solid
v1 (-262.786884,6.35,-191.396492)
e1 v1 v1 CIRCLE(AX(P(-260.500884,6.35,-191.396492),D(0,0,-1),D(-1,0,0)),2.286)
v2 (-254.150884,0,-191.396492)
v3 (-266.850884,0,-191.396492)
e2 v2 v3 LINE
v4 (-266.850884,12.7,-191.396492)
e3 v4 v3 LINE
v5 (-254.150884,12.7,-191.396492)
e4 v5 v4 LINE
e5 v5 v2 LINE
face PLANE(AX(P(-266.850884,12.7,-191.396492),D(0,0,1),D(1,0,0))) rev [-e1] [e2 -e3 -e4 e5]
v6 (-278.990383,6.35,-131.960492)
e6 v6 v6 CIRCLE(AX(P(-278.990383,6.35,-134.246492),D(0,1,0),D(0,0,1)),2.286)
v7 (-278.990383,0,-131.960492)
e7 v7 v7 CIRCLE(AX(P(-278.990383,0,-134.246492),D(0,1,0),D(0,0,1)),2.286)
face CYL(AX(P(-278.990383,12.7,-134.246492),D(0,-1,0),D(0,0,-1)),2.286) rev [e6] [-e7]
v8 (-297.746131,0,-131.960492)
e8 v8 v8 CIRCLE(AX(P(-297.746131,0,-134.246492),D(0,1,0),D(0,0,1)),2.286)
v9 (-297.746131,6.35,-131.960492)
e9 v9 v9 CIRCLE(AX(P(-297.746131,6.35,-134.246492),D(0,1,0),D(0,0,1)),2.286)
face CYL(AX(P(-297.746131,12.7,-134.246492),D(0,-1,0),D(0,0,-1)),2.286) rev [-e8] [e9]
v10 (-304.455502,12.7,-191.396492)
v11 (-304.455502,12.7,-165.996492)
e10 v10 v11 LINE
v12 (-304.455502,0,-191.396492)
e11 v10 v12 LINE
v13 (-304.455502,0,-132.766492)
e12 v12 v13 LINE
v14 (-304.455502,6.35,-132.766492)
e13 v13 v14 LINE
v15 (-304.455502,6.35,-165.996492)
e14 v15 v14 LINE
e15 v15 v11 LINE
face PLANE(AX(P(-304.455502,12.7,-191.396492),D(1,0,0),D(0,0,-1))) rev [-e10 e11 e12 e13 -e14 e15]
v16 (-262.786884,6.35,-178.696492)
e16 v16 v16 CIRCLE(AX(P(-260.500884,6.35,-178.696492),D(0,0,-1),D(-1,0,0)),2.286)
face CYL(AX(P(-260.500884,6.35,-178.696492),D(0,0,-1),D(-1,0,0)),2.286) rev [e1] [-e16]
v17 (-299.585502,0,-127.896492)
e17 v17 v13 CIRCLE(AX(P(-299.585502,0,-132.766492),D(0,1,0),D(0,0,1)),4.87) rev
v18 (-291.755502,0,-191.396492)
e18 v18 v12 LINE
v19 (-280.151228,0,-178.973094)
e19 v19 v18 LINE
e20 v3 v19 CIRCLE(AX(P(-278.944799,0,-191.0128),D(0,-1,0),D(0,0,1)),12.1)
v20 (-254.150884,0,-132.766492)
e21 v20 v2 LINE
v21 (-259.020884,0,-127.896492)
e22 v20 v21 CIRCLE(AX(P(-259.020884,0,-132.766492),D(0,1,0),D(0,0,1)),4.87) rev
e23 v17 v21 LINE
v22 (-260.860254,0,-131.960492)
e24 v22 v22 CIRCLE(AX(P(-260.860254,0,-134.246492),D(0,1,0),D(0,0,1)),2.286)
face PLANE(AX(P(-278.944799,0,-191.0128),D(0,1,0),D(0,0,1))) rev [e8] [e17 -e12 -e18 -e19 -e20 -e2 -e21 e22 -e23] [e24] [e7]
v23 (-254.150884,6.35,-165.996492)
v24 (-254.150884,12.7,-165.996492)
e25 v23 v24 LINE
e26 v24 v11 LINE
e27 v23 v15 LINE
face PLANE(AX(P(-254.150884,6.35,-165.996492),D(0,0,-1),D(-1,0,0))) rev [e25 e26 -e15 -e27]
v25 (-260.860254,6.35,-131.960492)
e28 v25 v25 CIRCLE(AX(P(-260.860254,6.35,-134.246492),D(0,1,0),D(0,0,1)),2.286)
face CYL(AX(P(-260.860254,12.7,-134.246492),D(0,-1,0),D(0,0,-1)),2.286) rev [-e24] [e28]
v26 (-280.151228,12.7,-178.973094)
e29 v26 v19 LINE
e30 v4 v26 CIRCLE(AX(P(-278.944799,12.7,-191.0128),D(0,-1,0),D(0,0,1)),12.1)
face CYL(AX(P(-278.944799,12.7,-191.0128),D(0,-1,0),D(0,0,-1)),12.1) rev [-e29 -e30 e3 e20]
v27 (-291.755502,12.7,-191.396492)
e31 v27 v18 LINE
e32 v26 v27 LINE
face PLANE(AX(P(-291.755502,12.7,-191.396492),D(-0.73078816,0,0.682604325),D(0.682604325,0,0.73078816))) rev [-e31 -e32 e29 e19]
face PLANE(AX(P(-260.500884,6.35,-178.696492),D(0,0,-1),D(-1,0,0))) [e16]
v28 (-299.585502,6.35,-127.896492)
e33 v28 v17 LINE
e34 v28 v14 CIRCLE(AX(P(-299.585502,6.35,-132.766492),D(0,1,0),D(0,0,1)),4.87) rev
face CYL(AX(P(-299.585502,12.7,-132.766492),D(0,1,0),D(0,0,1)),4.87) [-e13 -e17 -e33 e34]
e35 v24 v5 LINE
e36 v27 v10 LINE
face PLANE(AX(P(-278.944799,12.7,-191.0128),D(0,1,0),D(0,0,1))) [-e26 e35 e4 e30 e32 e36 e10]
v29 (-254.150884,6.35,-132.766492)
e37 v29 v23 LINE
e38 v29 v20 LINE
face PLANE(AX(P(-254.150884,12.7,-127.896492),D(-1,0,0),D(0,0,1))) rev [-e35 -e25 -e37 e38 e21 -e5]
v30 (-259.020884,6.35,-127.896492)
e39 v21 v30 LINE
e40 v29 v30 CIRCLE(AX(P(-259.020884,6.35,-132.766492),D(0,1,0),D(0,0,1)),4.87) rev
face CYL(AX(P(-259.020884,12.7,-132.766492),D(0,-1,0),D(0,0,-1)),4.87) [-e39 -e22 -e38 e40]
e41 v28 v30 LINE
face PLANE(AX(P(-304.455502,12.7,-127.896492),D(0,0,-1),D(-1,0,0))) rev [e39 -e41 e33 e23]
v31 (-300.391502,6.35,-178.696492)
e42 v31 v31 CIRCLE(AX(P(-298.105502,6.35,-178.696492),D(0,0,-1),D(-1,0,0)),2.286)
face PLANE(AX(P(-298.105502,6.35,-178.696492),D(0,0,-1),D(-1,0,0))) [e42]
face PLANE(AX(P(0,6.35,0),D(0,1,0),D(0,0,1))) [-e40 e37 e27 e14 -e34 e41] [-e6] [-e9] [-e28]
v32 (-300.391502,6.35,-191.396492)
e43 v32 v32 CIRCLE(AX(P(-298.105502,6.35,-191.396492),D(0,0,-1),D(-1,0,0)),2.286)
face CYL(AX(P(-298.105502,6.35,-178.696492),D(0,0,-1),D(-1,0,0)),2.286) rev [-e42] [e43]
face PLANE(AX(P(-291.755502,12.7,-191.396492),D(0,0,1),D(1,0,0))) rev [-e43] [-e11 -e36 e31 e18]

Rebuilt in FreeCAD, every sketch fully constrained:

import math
import FreeCAD as App
import Part
import Sketcher
Q = App.Units.Quantity


def edges_at(feature, points):
    """Names of the edges that pass closest to the given points."""
    edges = feature.Shape.Edges
    near = lambda p: min(range(len(edges)), key=lambda i: edges[i].distToShape(Part.Vertex(*p))[0])
    return sorted({f"Edge{near(p) + 1}" for p in points})


def add_polygon(sketch, points):
    """Adds a closed chain of lines whose ends are joined by coincident constraints."""
    first, n = sketch.GeometryCount, len(points)
    for a, b in zip(points, points[1:] + points[:1]):
        sketch.addGeometry(Part.LineSegment(App.Vector(*a, 0), App.Vector(*b, 0)), False)
    for i in range(n):
        sketch.addConstraint(Sketcher.Constraint("Coincident", first + i, 2, first + (i + 1) % n, 1))

doc = App.newDocument("Part")
params = doc.addObject("Spreadsheet::Sheet", "Params")
for row, (alias, value) in enumerate([
    ("sketch1_diameter", "0.18 in"),
    ("sketch1_width", "0.5 in"),
    ("sketch1_height", "2.5 in"),
    ("pad1_length", "0.5 in"),
    ("sketch2_diameter", "0.18 in"),
    ("pocket1_length", "0.5 in"),
    ("fillet_radius", "4.87 mm"),
    ("fillet2_radius", "4.87 mm"),
    ("sketch3_height", "1.5 in"),
    ("pocket2_length", "0.25 in"),
], start=1):
    params.set(f"A{row}", alias)
    params.set(f"B{row}", "=" + value)
    params.setAlias(f"B{row}", alias)

body = doc.addObject("PartDesign::Body", "Body")

# Sketch on XZ plane
sketch1 = body.newObject("Sketcher::SketchObject", "Sketch")
sketch1.AttachmentSupport = (doc.getObject("XZ_Plane"), [""])
sketch1.MapMode = "FlatFace"
sketch1.addGeometry([
    Part.LineSegment(App.Vector(-280.2, -179, 0), App.Vector(-291.8, -191.4, 0)),  # 0
    Part.LineSegment(App.Vector(-291.8, -191.4, 0), App.Vector(-304.5, -191.4, 0)),  # 1
    Part.LineSegment(App.Vector(-304.5, -191.4, 0), App.Vector(-304.5, -127.9, 0)),  # 2
    Part.LineSegment(App.Vector(-304.5, -127.9, 0), App.Vector(-254.2, -127.9, 0)),  # 3
    Part.LineSegment(App.Vector(-254.2, -127.9, 0), App.Vector(-254.2, -191.4, 0)),  # 4
    Part.LineSegment(App.Vector(-254.2, -191.4, 0), App.Vector(-266.9, -191.4, 0)),  # 5
    Part.ArcOfCircle(Part.Circle(App.Vector(-278.9, -191, 0), App.Vector(0, 0, 1), 12.1), math.radians(-2), math.radians(96)),  # 6
    Part.Circle(App.Vector(-260.9, -134.2, 0), App.Vector(0, 0, 1), 2.3),  # 7
    Part.Circle(App.Vector(-279, -134.2, 0), App.Vector(0, 0, 1), 2.3),  # 8
    Part.Circle(App.Vector(-297.7, -134.2, 0), App.Vector(0, 0, 1), 2.3),  # 9
], False)
sketch1.addConstraint([
    Sketcher.Constraint("Coincident", 0, 2, 1, 1),
    Sketcher.Constraint("Coincident", 1, 2, 2, 1),
    Sketcher.Constraint("Coincident", 2, 2, 3, 1),
    Sketcher.Constraint("Coincident", 3, 2, 4, 1),
    Sketcher.Constraint("Coincident", 4, 2, 5, 1),
    Sketcher.Constraint("Coincident", 5, 2, 6, 1),
    Sketcher.Constraint("Coincident", 6, 2, 0, 1),
    Sketcher.Constraint("Horizontal", 1),
    Sketcher.Constraint("Vertical", 2),
    Sketcher.Constraint("Horizontal", 3),
    Sketcher.Constraint("Vertical", 4),
    Sketcher.Constraint("Horizontal", 5),
    Sketcher.Constraint("Equal", 7, 8),
    Sketcher.Constraint("Equal", 8, 9),
    Sketcher.Constraint("Horizontal", 7, 3, 8, 3),
    Sketcher.Constraint("Horizontal", 8, 3, 9, 3),
    Sketcher.Constraint("Horizontal", 1, 2, 4, 2),
    Sketcher.Constraint("Equal", 1, 5),
    Sketcher.Constraint("Diameter", 7, Q("0.18 in")),
    Sketcher.Constraint("DistanceX", 1, 2, 1, 1, Q("0.5 in")),
    Sketcher.Constraint("DistanceY", 2, 1, 2, 2, Q("2.5 in")),
    Sketcher.Constraint("Radius", 6, 12.1),
    Sketcher.Constraint("DistanceY", 0, 2, 9, 3, Q("2.25 in")),
    Sketcher.Constraint("DistanceX", 9, 3, 7, 3, Q("1.4521999 in")),
    Sketcher.Constraint("Distance", 0, 17.0),
    Sketcher.Constraint("DistanceX", 3, 1, 3, 2, 50.304618),
    Sketcher.Constraint("DistanceX", 6, 3, -1, 1, 278.944799),
    Sketcher.Constraint("DistanceY", 6, 3, -1, 1, 191.0128),
    Sketcher.Constraint("DistanceX", 0, 2, -1, 1, 291.755502),
    Sketcher.Constraint("DistanceX", 8, 3, 3, 2, 24.8395),
    Sketcher.Constraint("DistanceX", 9, 3, -1, 1, 297.746131),
])
sketch1.setExpression("Constraints[18]", "Params.sketch1_diameter")
sketch1.setExpression("Constraints[19]", "Params.sketch1_width")
sketch1.setExpression("Constraints[20]", "Params.sketch1_height")
pad1 = body.newObject("PartDesign::Pad", "Pad")
pad1.Profile = sketch1
pad1.setExpression("Length", "Params.pad1_length")
pad1.Reversed = True

# Sketch on XY plane
sketch2 = body.newObject("Sketcher::SketchObject", "Sketch001")
sketch2.AttachmentSupport = (doc.getObject("XY_Plane"), [""])
sketch2.MapMode = "FlatFace"
sketch2.AttachmentOffset = App.Placement(App.Vector(0, 0, -191.396492), App.Rotation())
sketch2.addGeometry([
    Part.Circle(App.Vector(-260.5, 6.3, 0), App.Vector(0, 0, 1), 2.3),
    Part.Circle(App.Vector(-298.1, 6.3, 0), App.Vector(0, 0, 1), 2.3),
], False)
sketch2.addConstraint([
    Sketcher.Constraint("Equal", 0, 1),
    Sketcher.Constraint("Horizontal", 0, 3, 1, 3),
    Sketcher.Constraint("Diameter", 0, Q("0.18 in")),
    Sketcher.Constraint("DistanceY", -1, 1, 0, 3, Q("0.25 in")),
    Sketcher.Constraint("DistanceX", 1, 3, -1, 1, 298.105502),
    Sketcher.Constraint("DistanceX", 1, 3, 0, 3, 37.604618),
])
sketch2.setExpression("Constraints[2]", "Params.sketch2_diameter")
pocket1 = body.newObject("PartDesign::Pocket", "Pocket")
pocket1.Profile = sketch2
pocket1.setExpression("Length", "Params.pocket1_length")
pocket1.Reversed = True
doc.recompute()

fillet = body.newObject("PartDesign::Fillet", "Fillet")
fillet.Base = (pocket1, edges_at(pocket1, [(-304.456, 6.35, -127.896)]))
fillet.setExpression("Radius", "Params.fillet_radius")
doc.recompute()

fillet2 = body.newObject("PartDesign::Fillet", "Fillet001")
fillet2.Base = (fillet, edges_at(fillet, [(-254.151, 6.35, -127.896)]))
fillet2.setExpression("Radius", "Params.fillet2_radius")

# Sketch on XZ plane
sketch3 = body.newObject("Sketcher::SketchObject", "Sketch002")
sketch3.AttachmentSupport = (doc.getObject("XZ_Plane"), [""])
sketch3.MapMode = "FlatFace"
sketch3.AttachmentOffset = App.Placement(App.Vector(0, 0, -0.5 * 25.4), App.Rotation())
add_polygon(sketch3, [(-304, -166), (-304, -128), (-254, -128), (-254, -166)])  # lines 0-3
sketch3.addConstraint([
    Sketcher.Constraint("Vertical", 0),
    Sketcher.Constraint("Horizontal", 1),
    Sketcher.Constraint("Vertical", 2),
    Sketcher.Constraint("Horizontal", 3),
    Sketcher.Constraint("DistanceY", 0, 1, 0, 2, Q("1.5 in")),
    Sketcher.Constraint("DistanceX", 1, 1, 1, 2, 50.304618),
    Sketcher.Constraint("DistanceX", 0, 2, -1, 1, 304.455502),
    Sketcher.Constraint("DistanceY", 0, 2, -1, 1, 127.896492),
])
sketch3.setExpression("Constraints[8]", "Params.sketch3_height")
pocket2 = body.newObject("PartDesign::Pocket", "Pocket001")
pocket2.Profile = sketch3
pocket2.setExpression("Length", "Params.pocket2_length")
pocket2.Reversed = True

doc.recompute()
